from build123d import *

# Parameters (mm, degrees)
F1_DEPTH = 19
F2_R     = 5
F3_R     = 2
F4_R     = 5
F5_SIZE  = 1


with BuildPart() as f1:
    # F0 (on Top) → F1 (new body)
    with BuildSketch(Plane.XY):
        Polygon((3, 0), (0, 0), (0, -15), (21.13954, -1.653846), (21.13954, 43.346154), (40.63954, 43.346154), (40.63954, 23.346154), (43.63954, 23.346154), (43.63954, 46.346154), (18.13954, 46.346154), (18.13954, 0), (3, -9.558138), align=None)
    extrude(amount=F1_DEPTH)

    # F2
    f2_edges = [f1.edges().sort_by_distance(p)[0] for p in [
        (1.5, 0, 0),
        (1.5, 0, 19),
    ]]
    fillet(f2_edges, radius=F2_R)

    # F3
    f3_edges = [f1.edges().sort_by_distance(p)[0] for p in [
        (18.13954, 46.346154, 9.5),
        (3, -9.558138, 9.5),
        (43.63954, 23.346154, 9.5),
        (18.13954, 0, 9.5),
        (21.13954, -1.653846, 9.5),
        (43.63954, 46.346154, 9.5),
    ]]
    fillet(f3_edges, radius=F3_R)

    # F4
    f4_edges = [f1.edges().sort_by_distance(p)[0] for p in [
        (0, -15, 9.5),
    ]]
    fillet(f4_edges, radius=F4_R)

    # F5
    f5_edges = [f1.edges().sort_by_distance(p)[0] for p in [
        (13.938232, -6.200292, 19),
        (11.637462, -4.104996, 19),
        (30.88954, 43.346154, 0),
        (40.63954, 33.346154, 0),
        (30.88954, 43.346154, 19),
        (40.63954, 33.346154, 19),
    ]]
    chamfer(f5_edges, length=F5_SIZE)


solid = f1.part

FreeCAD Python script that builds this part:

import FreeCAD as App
import Part
import Sketcher


def edges_at(feature, points):
    """Names of the edges that pass closest to the given points."""
    edges = feature.Shape.Edges
    near = lambda p: min(range(len(edges)), key=lambda i: edges[i].distToShape(Part.Vertex(*p))[0])
    return sorted({f"Edge{near(p) + 1}" for p in points})

doc = App.newDocument("Part")
params = doc.addObject("Spreadsheet::Sheet", "Params")
for row, (alias, value) in enumerate([
    ("sketch1_width", "3 mm"),
    ("sketch1_height", "15 mm"),
    ("sketch1_height2", "45 mm"),
    ("sketch1_height3", "20 mm"),
    ("sketch1_height4", "23 mm"),
    ("pad1_length", "19 mm"),
    ("fillet_radius", "5 mm"),
    ("fillet2_radius", "2 mm"),
    ("fillet3_radius", "5 mm"),
    ("chamfer_size", "1 mm"),
], start=1):
    params.set(f"A{row}", alias)
    params.set(f"B{row}", "=" + value)
    params.setAlias(f"B{row}", alias)

body = doc.addObject("PartDesign::Body", "Body")

# Sketch on XY plane
sketch1 = doc.addObject("Sketcher::SketchObject", "Sketch")
body.addObject(sketch1)
sketch1.AttachmentSupport = (doc.XY_Plane, [""])
sketch1.MapMode = "FlatFace"
sketch1.addGeometry(Part.LineSegment(App.Vector(3, 0, 0), App.Vector(0, 0, 0)), False)
sketch1.addGeometry(Part.LineSegment(App.Vector(0, 0, 0), App.Vector(0, -15, 0)), False)
sketch1.addGeometry(Part.LineSegment(App.Vector(0, -15, 0), App.Vector(21.1, -1.7, 0)), False)
sketch1.addGeometry(Part.LineSegment(App.Vector(21.1, -1.7, 0), App.Vector(21.1, 43.3, 0)), False)
sketch1.addGeometry(Part.LineSegment(App.Vector(21.1, 43.3, 0), App.Vector(40.6, 43.3, 0)), False)
sketch1.addGeometry(Part.LineSegment(App.Vector(40.6, 43.3, 0), App.Vector(40.6, 23.3, 0)), False)
sketch1.addGeometry(Part.LineSegment(App.Vector(40.6, 23.3, 0), App.Vector(43.6, 23.3, 0)), False)
sketch1.addGeometry(Part.LineSegment(App.Vector(43.6, 23.3, 0), App.Vector(43.6, 46.3, 0)), False)
sketch1.addGeometry(Part.LineSegment(App.Vector(43.6, 46.3, 0), App.Vector(18.1, 46.3, 0)), False)
sketch1.addGeometry(Part.LineSegment(App.Vector(18.1, 46.3, 0), App.Vector(18.1, 0, 0)), False)
sketch1.addGeometry(Part.LineSegment(App.Vector(18.1, 0, 0), App.Vector(3, -9.6, 0)), False)
sketch1.addGeometry(Part.LineSegment(App.Vector(3, -9.6, 0), App.Vector(3, 0, 0)), False)
sketch1.addConstraint(Sketcher.Constraint("Coincident", 0, 2, 1, 1))
sketch1.addConstraint(Sketcher.Constraint("Coincident", 1, 2, 2, 1))
sketch1.addConstraint(Sketcher.Constraint("Coincident", 2, 2, 3, 1))
sketch1.addConstraint(Sketcher.Constraint("Coincident", 3, 2, 4, 1))
sketch1.addConstraint(Sketcher.Constraint("Coincident", 4, 2, 5, 1))
sketch1.addConstraint(Sketcher.Constraint("Coincident", 5, 2, 6, 1))
sketch1.addConstraint(Sketcher.Constraint("Coincident", 6, 2, 7, 1))
sketch1.addConstraint(Sketcher.Constraint("Coincident", 7, 2, 8, 1))
sketch1.addConstraint(Sketcher.Constraint("Coincident", 8, 2, 9, 1))
sketch1.addConstraint(Sketcher.Constraint("Coincident", 9, 2, 10, 1))
sketch1.addConstraint(Sketcher.Constraint("Coincident", 10, 2, 11, 1))
sketch1.addConstraint(Sketcher.Constraint("Coincident", 11, 2, 0, 1))
sketch1.addConstraint(Sketcher.Constraint("Horizontal", 0))
sketch1.addConstraint(Sketcher.Constraint("Vertical", 1))
sketch1.addConstraint(Sketcher.Constraint("Vertical", 3))
sketch1.addConstraint(Sketcher.Constraint("Horizontal", 4))
sketch1.addConstraint(Sketcher.Constraint("Vertical", 5))
sketch1.addConstraint(Sketcher.Constraint("Horizontal", 6))
sketch1.addConstraint(Sketcher.Constraint("Vertical", 7))
sketch1.addConstraint(Sketcher.Constraint("Horizontal", 8))
sketch1.addConstraint(Sketcher.Constraint("Vertical", 9))
sketch1.addConstraint(Sketcher.Constraint("Vertical", 11))
sketch1.addConstraint(Sketcher.Constraint("Coincident", 0, 2, -1, 1))
sketch1.addConstraint(Sketcher.Constraint("PointOnObject", 9, 2, -1))
sketch1.addConstraint(Sketcher.Constraint("Parallel", 2, 10))
sketch1.addConstraint(Sketcher.Constraint("Equal", 0, 6))
sketch1.addConstraint(Sketcher.Constraint("DistanceX", 0, 2, 0, 1, 3.0))
sketch1.addConstraint(Sketcher.Constraint("DistanceY", 1, 2, 1, 1, 15.0))
sketch1.addConstraint(Sketcher.Constraint("DistanceY", 3, 1, 3, 2, 45.0))
sketch1.addConstraint(Sketcher.Constraint("DistanceY", 5, 2, 5, 1, 20.0))
sketch1.addConstraint(Sketcher.Constraint("DistanceY", 7, 1, 7, 2, 23.0))
sketch1.addConstraint(Sketcher.Constraint("Distance", 2, 25.0))
sketch1.addConstraint(Sketcher.Constraint("DistanceX", 4, 1, 4, 2, 19.5))
sketch1.addConstraint(Sketcher.Constraint("DistanceX", 8, 2, 8, 1, 25.5))
sketch1.addConstraint(Sketcher.Constraint("DistanceY", 9, 2, 9, 1, 46.346154))
sketch1.setExpression("Constraints[26]", "Params.sketch1_width")
sketch1.setExpression("Constraints[27]", "Params.sketch1_height")
sketch1.setExpression("Constraints[28]", "Params.sketch1_height2")
sketch1.setExpression("Constraints[29]", "Params.sketch1_height3")
sketch1.setExpression("Constraints[30]", "Params.sketch1_height4")
pad1 = doc.addObject("PartDesign::Pad", "Pad")
body.addObject(pad1)
pad1.Profile = sketch1
pad1.setExpression("Length", "Params.pad1_length")
doc.recompute()

fillet = doc.addObject("PartDesign::Fillet", "Fillet")
body.addObject(fillet)
fillet.Base = (pad1, edges_at(pad1, [(1.5, 0, 0), (1.5, 0, 19)]))
fillet.setExpression("Radius", "Params.fillet_radius")
doc.recompute()

fillet2 = doc.addObject("PartDesign::Fillet", "Fillet001")
body.addObject(fillet2)
fillet2.Base = (fillet, edges_at(fillet, [
    (18.14, 46.346, 9.5),
    (3, -9.558, 9.5),
    (43.64, 23.346, 9.5),
    (18.14, 0, 9.5),
    (21.14, -1.654, 9.5),
    (43.64, 46.346, 9.5),
]))
fillet2.setExpression("Radius", "Params.fillet2_radius")
doc.recompute()

fillet3 = doc.addObject("PartDesign::Fillet", "Fillet002")
body.addObject(fillet3)
fillet3.Base = (fillet2, edges_at(fillet2, [(0, -15, 9.5)]))
fillet3.setExpression("Radius", "Params.fillet3_radius")
doc.recompute()

chamfer = doc.addObject("PartDesign::Chamfer", "Chamfer")
body.addObject(chamfer)
chamfer.Base = (fillet3, edges_at(fillet3, [
    (13.938, -6.2, 19),
    (11.637, -4.105, 19),
    (30.89, 43.346, 0),
    (40.64, 33.346, 0),
    (30.89, 43.346, 19),
    (40.64, 33.346, 19),
]))
chamfer.setExpression("Size", "Params.chamfer_size")

doc.recompute()
